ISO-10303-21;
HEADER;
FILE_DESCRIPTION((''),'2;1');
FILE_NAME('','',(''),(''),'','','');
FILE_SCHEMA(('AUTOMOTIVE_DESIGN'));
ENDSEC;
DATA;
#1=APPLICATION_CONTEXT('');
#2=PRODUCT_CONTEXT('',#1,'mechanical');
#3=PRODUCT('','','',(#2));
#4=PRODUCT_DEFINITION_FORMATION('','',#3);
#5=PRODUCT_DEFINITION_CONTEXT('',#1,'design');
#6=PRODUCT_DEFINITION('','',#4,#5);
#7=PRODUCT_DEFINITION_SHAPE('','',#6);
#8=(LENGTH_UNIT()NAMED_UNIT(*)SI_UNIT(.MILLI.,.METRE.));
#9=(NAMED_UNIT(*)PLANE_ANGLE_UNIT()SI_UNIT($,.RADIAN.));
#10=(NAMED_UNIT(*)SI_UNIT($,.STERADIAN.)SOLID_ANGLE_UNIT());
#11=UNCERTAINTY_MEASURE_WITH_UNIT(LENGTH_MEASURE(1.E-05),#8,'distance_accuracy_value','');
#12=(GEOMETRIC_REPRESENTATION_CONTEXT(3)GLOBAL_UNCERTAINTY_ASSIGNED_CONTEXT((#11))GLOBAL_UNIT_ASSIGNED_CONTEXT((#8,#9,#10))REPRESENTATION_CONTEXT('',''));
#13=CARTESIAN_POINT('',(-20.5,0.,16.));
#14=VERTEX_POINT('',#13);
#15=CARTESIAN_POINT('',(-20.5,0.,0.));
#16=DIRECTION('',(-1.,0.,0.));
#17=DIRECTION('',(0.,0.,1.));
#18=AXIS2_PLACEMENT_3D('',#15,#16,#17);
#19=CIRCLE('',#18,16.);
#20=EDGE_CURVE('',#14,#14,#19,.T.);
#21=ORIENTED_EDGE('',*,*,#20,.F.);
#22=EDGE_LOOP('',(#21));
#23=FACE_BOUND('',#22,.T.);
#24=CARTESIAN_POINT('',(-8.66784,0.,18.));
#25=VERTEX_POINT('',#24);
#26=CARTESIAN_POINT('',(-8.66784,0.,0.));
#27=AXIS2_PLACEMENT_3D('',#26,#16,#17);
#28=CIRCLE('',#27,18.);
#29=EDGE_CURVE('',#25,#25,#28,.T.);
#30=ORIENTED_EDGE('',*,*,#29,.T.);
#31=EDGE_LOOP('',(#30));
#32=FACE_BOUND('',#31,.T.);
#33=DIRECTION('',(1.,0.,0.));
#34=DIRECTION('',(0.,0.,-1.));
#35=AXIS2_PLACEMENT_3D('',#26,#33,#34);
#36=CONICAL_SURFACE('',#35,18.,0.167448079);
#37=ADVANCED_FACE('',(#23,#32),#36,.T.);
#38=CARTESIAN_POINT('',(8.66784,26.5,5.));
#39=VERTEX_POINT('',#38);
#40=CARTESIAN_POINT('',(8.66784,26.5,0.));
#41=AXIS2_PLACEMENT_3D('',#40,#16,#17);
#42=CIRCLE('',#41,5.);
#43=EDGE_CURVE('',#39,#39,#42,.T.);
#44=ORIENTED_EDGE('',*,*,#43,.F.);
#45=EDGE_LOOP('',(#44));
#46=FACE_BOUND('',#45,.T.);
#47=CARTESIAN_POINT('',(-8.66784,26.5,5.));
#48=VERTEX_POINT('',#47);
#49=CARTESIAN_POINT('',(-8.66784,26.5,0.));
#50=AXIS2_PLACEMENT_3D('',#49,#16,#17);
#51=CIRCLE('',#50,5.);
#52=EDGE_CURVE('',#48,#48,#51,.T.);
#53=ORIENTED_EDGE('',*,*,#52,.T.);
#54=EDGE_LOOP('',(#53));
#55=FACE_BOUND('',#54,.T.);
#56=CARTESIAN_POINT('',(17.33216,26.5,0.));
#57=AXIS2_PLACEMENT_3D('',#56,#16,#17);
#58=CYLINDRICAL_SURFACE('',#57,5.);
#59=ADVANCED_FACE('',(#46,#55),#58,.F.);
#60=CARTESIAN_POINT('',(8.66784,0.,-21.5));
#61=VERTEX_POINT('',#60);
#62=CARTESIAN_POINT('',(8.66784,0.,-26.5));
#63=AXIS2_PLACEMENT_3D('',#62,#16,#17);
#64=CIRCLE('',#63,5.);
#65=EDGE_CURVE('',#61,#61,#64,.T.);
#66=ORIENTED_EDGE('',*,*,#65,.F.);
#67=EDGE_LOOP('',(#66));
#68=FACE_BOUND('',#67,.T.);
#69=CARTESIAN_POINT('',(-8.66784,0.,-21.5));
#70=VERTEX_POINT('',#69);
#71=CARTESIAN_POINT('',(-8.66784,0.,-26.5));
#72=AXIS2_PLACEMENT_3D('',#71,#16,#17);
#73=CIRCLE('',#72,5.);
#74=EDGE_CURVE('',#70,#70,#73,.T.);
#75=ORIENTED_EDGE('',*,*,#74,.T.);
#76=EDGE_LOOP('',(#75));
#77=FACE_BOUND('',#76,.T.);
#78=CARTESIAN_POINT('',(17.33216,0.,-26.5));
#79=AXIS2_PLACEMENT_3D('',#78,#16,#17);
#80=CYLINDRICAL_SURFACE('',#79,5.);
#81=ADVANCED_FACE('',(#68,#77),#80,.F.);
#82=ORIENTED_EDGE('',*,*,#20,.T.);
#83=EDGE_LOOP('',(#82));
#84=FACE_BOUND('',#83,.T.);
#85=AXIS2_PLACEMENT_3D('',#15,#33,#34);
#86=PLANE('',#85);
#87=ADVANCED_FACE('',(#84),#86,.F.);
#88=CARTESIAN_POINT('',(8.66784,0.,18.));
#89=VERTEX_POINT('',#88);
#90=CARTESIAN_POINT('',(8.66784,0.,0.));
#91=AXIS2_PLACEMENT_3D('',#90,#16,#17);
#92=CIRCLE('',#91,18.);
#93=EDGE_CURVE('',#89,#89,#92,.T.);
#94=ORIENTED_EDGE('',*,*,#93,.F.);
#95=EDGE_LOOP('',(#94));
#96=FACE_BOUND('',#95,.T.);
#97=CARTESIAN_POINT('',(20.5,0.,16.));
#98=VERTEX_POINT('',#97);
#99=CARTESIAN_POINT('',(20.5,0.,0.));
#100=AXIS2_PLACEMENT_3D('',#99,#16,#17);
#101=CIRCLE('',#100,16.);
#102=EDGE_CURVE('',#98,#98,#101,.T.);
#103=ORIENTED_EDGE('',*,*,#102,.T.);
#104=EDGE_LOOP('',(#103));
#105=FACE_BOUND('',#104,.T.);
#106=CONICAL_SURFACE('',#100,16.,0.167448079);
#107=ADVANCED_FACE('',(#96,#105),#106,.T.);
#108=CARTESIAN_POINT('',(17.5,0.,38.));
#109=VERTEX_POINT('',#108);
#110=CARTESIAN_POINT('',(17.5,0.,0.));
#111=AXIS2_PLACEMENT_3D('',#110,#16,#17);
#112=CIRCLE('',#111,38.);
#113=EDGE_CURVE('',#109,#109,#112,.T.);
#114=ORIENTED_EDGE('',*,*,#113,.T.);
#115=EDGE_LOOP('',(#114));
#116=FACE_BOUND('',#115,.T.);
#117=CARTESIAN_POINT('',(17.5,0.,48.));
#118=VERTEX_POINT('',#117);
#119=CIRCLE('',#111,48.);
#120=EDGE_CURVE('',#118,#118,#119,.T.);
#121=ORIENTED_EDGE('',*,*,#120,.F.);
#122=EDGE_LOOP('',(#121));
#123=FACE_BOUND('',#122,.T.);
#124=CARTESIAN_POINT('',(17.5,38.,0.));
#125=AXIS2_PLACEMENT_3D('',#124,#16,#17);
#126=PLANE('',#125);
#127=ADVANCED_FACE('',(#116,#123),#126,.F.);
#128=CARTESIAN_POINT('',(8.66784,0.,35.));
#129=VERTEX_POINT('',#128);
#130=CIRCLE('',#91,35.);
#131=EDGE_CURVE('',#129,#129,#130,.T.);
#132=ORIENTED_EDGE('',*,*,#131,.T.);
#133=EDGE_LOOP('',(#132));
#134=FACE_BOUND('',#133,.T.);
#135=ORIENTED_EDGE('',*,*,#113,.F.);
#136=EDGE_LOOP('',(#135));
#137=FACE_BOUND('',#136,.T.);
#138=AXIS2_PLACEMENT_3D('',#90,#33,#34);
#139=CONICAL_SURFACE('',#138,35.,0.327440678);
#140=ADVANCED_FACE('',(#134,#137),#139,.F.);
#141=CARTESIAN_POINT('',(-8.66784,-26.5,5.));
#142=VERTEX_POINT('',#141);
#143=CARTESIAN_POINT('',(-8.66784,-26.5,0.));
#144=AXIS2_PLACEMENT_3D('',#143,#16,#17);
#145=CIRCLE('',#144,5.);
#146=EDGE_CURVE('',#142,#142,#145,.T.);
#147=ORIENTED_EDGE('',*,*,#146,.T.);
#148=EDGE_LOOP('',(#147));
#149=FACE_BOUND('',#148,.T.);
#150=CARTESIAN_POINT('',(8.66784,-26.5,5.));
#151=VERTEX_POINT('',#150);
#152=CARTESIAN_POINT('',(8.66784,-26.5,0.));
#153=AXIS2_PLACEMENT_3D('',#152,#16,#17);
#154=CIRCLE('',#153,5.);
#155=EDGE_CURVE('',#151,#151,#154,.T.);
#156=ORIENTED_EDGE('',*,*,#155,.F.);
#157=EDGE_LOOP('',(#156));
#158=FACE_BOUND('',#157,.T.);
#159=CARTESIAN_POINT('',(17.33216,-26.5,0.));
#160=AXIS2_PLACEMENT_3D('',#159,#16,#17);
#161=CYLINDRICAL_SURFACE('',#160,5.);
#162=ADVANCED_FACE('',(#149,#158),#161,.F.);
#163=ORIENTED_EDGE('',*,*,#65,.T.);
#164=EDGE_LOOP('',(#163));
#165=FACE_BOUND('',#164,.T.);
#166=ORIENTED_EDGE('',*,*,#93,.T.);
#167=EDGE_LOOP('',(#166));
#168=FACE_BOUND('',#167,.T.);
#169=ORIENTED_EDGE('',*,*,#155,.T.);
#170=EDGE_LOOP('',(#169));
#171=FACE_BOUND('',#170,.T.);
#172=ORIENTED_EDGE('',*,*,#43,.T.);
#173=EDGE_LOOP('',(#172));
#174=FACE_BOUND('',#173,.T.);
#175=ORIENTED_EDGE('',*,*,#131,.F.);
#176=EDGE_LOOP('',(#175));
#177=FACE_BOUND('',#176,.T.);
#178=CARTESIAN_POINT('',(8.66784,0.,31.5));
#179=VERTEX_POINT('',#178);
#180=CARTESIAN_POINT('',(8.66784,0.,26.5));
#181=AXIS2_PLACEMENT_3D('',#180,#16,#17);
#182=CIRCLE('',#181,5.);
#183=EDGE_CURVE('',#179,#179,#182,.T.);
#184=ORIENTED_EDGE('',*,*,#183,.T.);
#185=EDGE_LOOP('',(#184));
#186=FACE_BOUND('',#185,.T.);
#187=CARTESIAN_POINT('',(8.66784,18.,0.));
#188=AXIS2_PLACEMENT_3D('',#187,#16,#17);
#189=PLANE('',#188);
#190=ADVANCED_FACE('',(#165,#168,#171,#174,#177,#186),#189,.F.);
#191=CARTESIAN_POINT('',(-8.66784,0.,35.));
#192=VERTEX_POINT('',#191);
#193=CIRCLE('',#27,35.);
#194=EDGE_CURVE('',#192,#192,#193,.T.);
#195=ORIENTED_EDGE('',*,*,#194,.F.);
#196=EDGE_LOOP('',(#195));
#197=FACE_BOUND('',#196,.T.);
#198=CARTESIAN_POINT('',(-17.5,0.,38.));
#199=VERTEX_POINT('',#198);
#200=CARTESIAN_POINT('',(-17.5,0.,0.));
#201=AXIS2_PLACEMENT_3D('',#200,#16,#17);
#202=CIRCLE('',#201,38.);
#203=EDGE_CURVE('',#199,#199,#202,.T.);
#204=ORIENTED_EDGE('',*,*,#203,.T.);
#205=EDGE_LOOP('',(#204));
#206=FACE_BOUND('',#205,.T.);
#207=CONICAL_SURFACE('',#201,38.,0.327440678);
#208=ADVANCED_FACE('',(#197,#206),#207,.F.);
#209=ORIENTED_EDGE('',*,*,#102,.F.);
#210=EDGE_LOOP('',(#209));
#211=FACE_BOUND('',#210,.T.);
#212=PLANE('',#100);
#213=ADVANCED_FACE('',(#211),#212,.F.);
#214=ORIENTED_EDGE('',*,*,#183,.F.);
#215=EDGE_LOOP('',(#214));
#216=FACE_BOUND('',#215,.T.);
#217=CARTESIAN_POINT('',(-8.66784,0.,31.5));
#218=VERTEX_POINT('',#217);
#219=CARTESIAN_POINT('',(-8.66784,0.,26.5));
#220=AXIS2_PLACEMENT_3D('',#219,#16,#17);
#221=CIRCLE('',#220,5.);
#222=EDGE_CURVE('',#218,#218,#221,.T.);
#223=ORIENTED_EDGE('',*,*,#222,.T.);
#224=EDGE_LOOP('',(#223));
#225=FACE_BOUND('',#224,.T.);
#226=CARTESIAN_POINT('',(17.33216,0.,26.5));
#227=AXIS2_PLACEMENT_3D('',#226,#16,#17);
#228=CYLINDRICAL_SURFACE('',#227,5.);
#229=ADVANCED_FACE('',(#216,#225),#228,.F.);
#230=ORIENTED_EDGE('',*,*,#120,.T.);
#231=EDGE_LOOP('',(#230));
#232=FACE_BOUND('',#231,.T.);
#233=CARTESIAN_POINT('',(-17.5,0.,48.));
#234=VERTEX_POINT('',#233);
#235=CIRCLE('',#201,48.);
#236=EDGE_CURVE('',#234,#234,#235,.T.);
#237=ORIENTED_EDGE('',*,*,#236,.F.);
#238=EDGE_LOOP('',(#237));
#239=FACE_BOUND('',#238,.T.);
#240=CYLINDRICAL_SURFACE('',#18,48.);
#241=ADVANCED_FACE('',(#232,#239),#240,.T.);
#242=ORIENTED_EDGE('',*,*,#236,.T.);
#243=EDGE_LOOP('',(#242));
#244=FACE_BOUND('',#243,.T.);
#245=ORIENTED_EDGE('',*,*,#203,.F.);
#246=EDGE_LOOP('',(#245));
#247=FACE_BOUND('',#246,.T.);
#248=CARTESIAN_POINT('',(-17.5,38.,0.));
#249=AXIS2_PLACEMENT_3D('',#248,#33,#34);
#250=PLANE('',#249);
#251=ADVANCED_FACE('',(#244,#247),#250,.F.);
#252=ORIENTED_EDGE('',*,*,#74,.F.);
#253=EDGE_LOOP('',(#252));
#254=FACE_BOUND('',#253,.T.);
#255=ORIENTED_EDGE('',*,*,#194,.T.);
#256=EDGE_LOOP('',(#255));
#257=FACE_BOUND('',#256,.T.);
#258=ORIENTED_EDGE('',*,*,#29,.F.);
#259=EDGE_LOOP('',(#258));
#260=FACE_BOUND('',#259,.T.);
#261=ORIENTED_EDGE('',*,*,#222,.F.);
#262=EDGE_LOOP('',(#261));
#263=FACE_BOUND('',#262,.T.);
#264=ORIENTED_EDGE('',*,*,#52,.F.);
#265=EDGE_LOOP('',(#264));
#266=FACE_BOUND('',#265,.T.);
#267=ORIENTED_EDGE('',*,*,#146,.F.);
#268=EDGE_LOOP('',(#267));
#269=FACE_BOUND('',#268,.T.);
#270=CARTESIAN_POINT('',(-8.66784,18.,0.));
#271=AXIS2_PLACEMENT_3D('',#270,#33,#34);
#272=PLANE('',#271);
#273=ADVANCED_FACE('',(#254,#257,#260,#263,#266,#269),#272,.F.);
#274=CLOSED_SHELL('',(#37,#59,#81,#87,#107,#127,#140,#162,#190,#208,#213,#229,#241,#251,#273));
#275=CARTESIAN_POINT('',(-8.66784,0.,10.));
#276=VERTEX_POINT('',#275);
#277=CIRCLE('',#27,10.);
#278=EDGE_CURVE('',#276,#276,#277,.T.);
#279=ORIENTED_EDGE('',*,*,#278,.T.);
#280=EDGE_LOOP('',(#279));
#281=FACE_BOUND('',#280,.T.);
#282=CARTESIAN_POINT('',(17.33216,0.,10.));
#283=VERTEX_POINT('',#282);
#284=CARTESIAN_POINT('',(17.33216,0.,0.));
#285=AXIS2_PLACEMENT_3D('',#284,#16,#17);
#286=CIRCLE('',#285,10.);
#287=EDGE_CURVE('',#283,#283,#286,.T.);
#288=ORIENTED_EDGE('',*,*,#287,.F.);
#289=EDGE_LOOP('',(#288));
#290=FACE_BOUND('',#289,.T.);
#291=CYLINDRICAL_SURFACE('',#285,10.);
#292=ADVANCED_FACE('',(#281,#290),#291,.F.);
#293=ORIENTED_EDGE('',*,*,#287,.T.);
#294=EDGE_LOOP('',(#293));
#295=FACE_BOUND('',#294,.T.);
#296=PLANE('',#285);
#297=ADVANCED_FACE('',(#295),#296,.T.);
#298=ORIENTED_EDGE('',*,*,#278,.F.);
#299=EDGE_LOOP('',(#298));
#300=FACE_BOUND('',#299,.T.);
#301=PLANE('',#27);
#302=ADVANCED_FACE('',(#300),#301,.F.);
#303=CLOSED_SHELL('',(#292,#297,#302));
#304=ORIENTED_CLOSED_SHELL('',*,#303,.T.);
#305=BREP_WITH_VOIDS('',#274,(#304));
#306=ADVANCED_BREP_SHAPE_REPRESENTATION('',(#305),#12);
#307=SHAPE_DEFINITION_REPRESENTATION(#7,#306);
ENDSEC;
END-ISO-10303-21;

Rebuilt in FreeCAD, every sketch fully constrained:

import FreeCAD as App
import Part
import Sketcher
from FreeCAD import Vector

doc = App.newDocument("Part")
body = doc.addObject("PartDesign::Body", "Body")

# Sketch on XY plane
sketch1 = body.newObject("Sketcher::SketchObject", "Sketch")
sketch1.AttachmentSupport = (doc.getObject("XY_Plane"), [""])
sketch1.MapMode = "FlatFace"
sketch1.addGeometry(Part.LineSegment(Vector(-20, 16, 0), Vector(-20, 0, 0)), False)
sketch1.addGeometry(Part.LineSegment(Vector(-20, 0, 0), Vector(20, 0, 0)), False)
sketch1.addGeometry(Part.LineSegment(Vector(20, 0, 0), Vector(20, 16, 0)), False)
sketch1.addGeometry(Part.LineSegment(Vector(20, 16, 0), Vector(9, 18, 0)), False)
sketch1.addGeometry(Part.LineSegment(Vector(9, 18, 0), Vector(9, 35, 0)), False)
sketch1.addGeometry(Part.LineSegment(Vector(9, 35, 0), Vector(18, 38, 0)), False)
sketch1.addGeometry(Part.LineSegment(Vector(18, 38, 0), Vector(18, 48, 0)), False)
sketch1.addGeometry(Part.LineSegment(Vector(18, 48, 0), Vector(-18, 48, 0)), False)
sketch1.addGeometry(Part.LineSegment(Vector(-18, 48, 0), Vector(-18, 38, 0)), False)
sketch1.addGeometry(Part.LineSegment(Vector(-18, 38, 0), Vector(-9, 35, 0)), False)
sketch1.addGeometry(Part.LineSegment(Vector(-9, 35, 0), Vector(-9, 18, 0)), False)
sketch1.addGeometry(Part.LineSegment(Vector(-9, 18, 0), Vector(-20, 16, 0)), False)
sketch1.addConstraint(Sketcher.Constraint("Coincident", 0, 2, 1, 1))
sketch1.addConstraint(Sketcher.Constraint("Coincident", 1, 2, 2, 1))
sketch1.addConstraint(Sketcher.Constraint("Coincident", 2, 2, 3, 1))
sketch1.addConstraint(Sketcher.Constraint("Coincident", 3, 2, 4, 1))
sketch1.addConstraint(Sketcher.Constraint("Coincident", 4, 2, 5, 1))
sketch1.addConstraint(Sketcher.Constraint("Coincident", 5, 2, 6, 1))
sketch1.addConstraint(Sketcher.Constraint("Coincident", 6, 2, 7, 1))
sketch1.addConstraint(Sketcher.Constraint("Coincident", 7, 2, 8, 1))
sketch1.addConstraint(Sketcher.Constraint("Coincident", 8, 2, 9, 1))
sketch1.addConstraint(Sketcher.Constraint("Coincident", 9, 2, 10, 1))
sketch1.addConstraint(Sketcher.Constraint("Coincident", 10, 2, 11, 1))
sketch1.addConstraint(Sketcher.Constraint("Coincident", 11, 2, 0, 1))
sketch1.addConstraint(Sketcher.Constraint("Vertical", 0))
sketch1.addConstraint(Sketcher.Constraint("Horizontal", 1))
sketch1.addConstraint(Sketcher.Constraint("Vertical", 2))
sketch1.addConstraint(Sketcher.Constraint("Vertical", 4))
sketch1.addConstraint(Sketcher.Constraint("Vertical", 6))
sketch1.addConstraint(Sketcher.Constraint("Horizontal", 7))
sketch1.addConstraint(Sketcher.Constraint("Vertical", 8))
sketch1.addConstraint(Sketcher.Constraint("Vertical", 10))
sketch1.addConstraint(Sketcher.Constraint("Symmetric", 0, 2, 1, 2, -1, 1))
sketch1.addConstraint(Sketcher.Constraint("Symmetric", 5, 2, 8, 2, -2))
sketch1.addConstraint(Sketcher.Constraint("Symmetric", 4, 2, 9, 2, -2))
sketch1.addConstraint(Sketcher.Constraint("Horizontal", 3, 2, 10, 2))
sketch1.addConstraint(Sketcher.Constraint("Horizontal", 2, 2, 11, 2))
sketch1.addConstraint(Sketcher.Constraint("DistanceX", 1, 1, 1, 2, 41.0))
sketch1.addConstraint(Sketcher.Constraint("DistanceX", 7, 2, 7, 1, 35.0))
sketch1.addConstraint(Sketcher.Constraint("DistanceY", 0, 2, 0, 1, 16.0))
sketch1.addConstraint(Sketcher.Constraint("DistanceY", 4, 1, 4, 2, 17.0))
sketch1.addConstraint(Sketcher.Constraint("DistanceY", 6, 1, 6, 2, 10.0))
sketch1.addConstraint(Sketcher.Constraint("Distance", 3, 12.0))
sketch1.addConstraint(Sketcher.Constraint("DistanceY", -1, 1, 3, 2, 18.0))
sketch1.addConstraint(Sketcher.Constraint("DistanceY", -1, 1, 5, 2, 38.0))
revolution = body.newObject("PartDesign::Revolution", "Revolution")
revolution.Profile = sketch1
revolution.ReferenceAxis = (sketch1, ["H_Axis"])
revolution.Angle = 360

# Sketch on YZ plane
sketch2 = body.newObject("Sketcher::SketchObject", "Sketch001")
sketch2.AttachmentSupport = (doc.getObject("YZ_Plane"), [""])
sketch2.MapMode = "FlatFace"
sketch2.AttachmentOffset = App.Placement(Vector(0, 0, -8.66784), App.Rotation())
sketch2.addGeometry(Part.Circle(Vector(26, 0, 0), Vector(0, 0, 1), 5), False)
sketch2.addGeometry(Part.Circle(Vector(0, 26, 0), Vector(0, 0, 1), 5), False)
sketch2.addGeometry(Part.Circle(Vector(-26, 0, 0), Vector(0, 0, 1), 5), False)
sketch2.addGeometry(Part.Circle(Vector(0, -26, 0), Vector(0, 0, 1), 5), False)
sketch2.addGeometry(Part.Circle(Vector(0, 0, 0), Vector(0, 0, 1), 10), False)
sketch2.addConstraint(Sketcher.Constraint("Coincident", 4, 3, -1, 1))
sketch2.addConstraint(Sketcher.Constraint("Equal", 0, 1))
sketch2.addConstraint(Sketcher.Constraint("Equal", 1, 2))
sketch2.addConstraint(Sketcher.Constraint("Equal", 2, 3))
sketch2.addConstraint(Sketcher.Constraint("Symmetric", 0, 3, 2, 3, -1, 1))
sketch2.addConstraint(Sketcher.Constraint("Symmetric", 1, 3, 3, 3, -1, 1))
sketch2.addConstraint(Sketcher.Constraint("PointOnObject", 0, 3, -1))
sketch2.addConstraint(Sketcher.Constraint("PointOnObject", 1, 3, -2))
sketch2.addConstraint(Sketcher.Constraint("Diameter", 0, 10.0))
sketch2.addConstraint(Sketcher.Constraint("Diameter", 4, 20.0))
sketch2.addConstraint(Sketcher.Constraint("DistanceX", 2, 3, 0, 3, 53.0))
sketch2.addConstraint(Sketcher.Constraint("DistanceY", 3, 3, 1, 3, 53.0))
pocket1 = body.newObject("PartDesign::Pocket", "Pocket")
pocket1.Profile = sketch2
pocket1.Length = 26
pocket1.Reversed = True

doc.recompute()
